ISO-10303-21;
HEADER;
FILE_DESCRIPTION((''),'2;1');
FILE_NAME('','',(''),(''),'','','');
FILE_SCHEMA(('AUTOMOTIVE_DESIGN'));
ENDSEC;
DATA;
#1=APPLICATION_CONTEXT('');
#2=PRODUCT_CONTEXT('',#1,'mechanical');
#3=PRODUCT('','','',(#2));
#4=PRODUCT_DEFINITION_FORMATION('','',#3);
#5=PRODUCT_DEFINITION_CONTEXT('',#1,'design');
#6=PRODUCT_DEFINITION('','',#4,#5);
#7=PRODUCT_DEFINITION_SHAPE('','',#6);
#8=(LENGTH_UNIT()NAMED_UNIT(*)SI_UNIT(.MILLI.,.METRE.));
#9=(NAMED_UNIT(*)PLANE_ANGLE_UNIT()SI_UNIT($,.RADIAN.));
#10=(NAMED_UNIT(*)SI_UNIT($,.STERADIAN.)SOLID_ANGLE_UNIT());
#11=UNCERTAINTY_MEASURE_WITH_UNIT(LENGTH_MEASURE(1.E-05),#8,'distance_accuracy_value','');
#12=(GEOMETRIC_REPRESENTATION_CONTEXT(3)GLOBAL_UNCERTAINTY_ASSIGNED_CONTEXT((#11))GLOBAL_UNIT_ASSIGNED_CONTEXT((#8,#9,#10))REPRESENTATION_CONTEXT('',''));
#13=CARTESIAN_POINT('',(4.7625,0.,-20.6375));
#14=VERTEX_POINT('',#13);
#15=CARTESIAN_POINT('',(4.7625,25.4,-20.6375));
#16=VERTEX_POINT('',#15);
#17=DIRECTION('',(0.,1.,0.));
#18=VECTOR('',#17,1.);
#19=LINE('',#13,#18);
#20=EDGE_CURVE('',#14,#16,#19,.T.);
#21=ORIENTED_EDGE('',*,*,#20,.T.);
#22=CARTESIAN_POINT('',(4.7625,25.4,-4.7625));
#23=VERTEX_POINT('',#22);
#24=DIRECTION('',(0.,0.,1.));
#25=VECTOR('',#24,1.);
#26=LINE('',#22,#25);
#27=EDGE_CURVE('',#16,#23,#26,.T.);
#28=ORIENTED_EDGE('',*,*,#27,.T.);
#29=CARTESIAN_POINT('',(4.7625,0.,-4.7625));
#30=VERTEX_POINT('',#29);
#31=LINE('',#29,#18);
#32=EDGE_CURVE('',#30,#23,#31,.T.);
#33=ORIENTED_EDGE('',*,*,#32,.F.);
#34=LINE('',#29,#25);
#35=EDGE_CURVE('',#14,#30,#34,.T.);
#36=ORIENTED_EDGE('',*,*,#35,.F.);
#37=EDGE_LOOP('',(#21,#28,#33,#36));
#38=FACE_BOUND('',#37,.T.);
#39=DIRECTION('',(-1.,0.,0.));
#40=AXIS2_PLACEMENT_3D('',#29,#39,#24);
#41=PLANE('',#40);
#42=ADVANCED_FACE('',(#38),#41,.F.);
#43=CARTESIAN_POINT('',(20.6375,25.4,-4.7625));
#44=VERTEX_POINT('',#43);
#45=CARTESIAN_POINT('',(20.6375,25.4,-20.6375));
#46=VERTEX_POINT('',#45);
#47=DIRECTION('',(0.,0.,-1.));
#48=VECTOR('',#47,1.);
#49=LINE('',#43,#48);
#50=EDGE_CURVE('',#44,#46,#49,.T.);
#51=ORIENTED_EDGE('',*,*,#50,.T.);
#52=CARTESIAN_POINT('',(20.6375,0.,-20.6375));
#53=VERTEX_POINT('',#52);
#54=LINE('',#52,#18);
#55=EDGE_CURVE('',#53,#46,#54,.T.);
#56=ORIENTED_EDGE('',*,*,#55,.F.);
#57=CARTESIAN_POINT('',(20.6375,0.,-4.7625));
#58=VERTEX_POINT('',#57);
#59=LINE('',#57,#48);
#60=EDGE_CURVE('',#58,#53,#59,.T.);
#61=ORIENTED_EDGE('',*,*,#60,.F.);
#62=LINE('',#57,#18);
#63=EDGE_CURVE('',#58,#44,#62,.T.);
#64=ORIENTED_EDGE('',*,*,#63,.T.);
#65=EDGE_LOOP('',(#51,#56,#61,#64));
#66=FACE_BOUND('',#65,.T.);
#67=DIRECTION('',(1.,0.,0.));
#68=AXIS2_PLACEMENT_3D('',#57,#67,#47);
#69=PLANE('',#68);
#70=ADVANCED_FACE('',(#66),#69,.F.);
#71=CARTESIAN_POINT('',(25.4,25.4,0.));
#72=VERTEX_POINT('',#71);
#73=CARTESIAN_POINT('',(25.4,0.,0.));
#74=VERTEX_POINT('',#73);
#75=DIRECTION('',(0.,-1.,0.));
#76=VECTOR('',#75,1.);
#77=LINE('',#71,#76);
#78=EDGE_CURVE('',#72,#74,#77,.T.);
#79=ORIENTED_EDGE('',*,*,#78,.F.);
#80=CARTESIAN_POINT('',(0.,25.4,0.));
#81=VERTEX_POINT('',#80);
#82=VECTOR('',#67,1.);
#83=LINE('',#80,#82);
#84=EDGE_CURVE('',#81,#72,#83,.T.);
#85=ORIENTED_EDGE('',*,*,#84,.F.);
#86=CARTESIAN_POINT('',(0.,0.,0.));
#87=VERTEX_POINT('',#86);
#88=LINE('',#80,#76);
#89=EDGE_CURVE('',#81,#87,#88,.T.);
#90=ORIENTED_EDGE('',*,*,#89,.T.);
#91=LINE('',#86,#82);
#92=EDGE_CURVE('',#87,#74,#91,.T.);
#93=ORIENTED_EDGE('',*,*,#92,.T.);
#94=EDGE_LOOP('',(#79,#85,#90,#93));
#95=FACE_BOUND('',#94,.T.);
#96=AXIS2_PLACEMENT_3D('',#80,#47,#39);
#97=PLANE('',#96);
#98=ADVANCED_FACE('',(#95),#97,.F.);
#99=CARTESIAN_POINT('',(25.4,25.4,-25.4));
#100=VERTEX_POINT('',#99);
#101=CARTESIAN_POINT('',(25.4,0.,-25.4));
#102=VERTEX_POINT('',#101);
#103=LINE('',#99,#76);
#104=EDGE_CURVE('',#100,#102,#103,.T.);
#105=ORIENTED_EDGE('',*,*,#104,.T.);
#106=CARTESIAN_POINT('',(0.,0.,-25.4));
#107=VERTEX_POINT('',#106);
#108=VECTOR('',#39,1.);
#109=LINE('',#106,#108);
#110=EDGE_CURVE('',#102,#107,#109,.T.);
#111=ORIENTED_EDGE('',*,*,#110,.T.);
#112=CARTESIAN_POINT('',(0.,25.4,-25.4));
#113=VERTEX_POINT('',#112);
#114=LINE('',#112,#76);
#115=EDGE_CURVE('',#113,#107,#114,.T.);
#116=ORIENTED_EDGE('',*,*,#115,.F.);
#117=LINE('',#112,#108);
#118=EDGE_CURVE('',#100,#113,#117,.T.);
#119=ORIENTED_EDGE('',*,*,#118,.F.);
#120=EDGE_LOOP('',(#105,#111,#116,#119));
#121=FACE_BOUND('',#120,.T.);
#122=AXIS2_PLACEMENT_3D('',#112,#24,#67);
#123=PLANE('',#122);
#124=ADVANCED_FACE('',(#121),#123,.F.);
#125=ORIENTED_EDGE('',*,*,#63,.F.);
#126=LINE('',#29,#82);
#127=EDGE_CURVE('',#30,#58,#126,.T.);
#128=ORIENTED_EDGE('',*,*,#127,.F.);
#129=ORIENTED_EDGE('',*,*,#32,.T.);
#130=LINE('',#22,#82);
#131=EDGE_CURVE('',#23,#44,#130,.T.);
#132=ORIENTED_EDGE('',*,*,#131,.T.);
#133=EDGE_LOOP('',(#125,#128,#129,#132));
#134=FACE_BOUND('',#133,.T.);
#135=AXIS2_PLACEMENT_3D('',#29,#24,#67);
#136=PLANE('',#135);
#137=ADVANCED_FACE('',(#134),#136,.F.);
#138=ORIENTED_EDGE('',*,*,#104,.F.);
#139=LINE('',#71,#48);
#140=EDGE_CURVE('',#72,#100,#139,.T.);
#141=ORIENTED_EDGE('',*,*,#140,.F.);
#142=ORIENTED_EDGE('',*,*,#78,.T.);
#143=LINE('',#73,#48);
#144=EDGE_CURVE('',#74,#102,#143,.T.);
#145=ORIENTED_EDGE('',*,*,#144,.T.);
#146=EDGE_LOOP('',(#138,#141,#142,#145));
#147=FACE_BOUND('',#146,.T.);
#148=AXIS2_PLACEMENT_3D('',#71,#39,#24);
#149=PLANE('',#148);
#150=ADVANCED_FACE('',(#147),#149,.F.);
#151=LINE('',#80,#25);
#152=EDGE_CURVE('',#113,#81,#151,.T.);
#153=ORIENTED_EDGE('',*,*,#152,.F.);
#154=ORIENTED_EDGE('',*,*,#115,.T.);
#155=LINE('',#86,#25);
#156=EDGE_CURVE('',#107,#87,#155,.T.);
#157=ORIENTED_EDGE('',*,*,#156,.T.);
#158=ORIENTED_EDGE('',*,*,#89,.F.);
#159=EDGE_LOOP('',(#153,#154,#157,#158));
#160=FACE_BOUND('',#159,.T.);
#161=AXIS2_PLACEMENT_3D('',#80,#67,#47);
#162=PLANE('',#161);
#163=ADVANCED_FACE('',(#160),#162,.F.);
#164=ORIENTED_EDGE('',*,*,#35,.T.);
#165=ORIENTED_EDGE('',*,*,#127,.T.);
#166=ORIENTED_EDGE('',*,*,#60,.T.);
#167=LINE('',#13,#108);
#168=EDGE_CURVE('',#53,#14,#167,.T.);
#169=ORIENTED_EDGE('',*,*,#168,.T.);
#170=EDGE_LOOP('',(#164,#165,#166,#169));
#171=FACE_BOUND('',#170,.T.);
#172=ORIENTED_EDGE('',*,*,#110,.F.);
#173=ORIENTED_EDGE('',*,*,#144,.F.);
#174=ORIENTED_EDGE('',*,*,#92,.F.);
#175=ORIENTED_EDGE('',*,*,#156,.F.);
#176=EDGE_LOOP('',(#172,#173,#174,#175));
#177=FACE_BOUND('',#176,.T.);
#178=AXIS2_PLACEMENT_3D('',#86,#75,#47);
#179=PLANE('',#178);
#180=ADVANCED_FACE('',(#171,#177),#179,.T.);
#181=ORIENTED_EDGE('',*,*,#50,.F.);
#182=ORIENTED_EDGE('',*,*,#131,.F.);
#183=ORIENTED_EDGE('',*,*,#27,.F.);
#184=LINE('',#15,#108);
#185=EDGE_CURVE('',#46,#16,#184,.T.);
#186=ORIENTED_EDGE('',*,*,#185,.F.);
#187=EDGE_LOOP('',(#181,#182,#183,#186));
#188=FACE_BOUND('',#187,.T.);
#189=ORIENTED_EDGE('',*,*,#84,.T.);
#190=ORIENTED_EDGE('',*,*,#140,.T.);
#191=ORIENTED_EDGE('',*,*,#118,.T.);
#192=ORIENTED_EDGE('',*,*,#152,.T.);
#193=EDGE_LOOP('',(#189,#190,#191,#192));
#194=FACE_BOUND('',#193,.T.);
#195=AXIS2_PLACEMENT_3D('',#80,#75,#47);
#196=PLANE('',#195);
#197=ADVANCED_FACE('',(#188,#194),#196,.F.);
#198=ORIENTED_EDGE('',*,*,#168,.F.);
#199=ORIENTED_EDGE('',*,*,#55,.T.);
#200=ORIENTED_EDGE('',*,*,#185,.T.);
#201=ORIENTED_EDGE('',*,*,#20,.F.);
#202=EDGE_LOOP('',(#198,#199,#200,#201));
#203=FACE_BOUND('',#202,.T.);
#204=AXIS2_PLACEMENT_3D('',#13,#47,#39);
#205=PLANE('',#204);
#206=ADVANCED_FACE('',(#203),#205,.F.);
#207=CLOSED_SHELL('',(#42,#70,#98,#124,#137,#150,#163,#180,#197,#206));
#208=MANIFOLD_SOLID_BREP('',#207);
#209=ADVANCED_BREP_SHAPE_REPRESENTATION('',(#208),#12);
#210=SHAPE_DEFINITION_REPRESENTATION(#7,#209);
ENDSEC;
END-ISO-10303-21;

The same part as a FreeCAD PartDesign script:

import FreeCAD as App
import Part
import Sketcher
Q = App.Units.Quantity

doc = App.newDocument("Part")
body = doc.addObject("PartDesign::Body", "Body")

sketch1 = doc.addObject("Sketcher::SketchObject", "Sketch")
body.addObject(sketch1)
sketch1.AttachmentSupport = (doc.XZ_Plane, [""])
sketch1.MapMode = "FlatFace"
sketch1.addGeometry(Part.LineSegment(App.Vector(0, -25, 0), App.Vector(0, 0, 0)), False)
sketch1.addGeometry(Part.LineSegment(App.Vector(0, 0, 0), App.Vector(25, 0, 0)), False)
sketch1.addGeometry(Part.LineSegment(App.Vector(25, 0, 0), App.Vector(25, -25, 0)), False)
sketch1.addGeometry(Part.LineSegment(App.Vector(25, -25, 0), App.Vector(0, -25, 0)), False)
sketch1.addConstraint(Sketcher.Constraint("Coincident", 0, 2, 1, 1))
sketch1.addConstraint(Sketcher.Constraint("Coincident", 1, 2, 2, 1))
sketch1.addConstraint(Sketcher.Constraint("Coincident", 2, 2, 3, 1))
sketch1.addConstraint(Sketcher.Constraint("Coincident", 3, 2, 0, 1))
sketch1.addConstraint(Sketcher.Constraint("Vertical", 0))
sketch1.addConstraint(Sketcher.Constraint("Horizontal", 1))
sketch1.addConstraint(Sketcher.Constraint("Vertical", 2))
sketch1.addConstraint(Sketcher.Constraint("Horizontal", 3))
sketch1.addConstraint(Sketcher.Constraint("Coincident", 0, 2, -1, 1))
sketch1.addConstraint(Sketcher.Constraint("Equal", 3, 0))
sketch1.addConstraint(Sketcher.Constraint("DistanceX", 1, 1, 1, 2, Q("1 in")))
pad1 = doc.addObject("PartDesign::Pad", "Pad")
body.addObject(pad1)
pad1.Profile = sketch1
pad1.Length = Q("1 in")
pad1.Reversed = True

sketch2 = doc.addObject("Sketcher::SketchObject", "Sketch001")
body.addObject(sketch2)
sketch2.AttachmentSupport = (doc.XZ_Plane, [""])
sketch2.MapMode = "FlatFace"
sketch2.AttachmentOffset = App.Placement(App.Vector(0, 0, -1 * 25.4), App.Rotation())
sketch2.addGeometry(Part.LineSegment(App.Vector(5, -21, 0), App.Vector(5, -5, 0)), False)
sketch2.addGeometry(Part.LineSegment(App.Vector(5, -5, 0), App.Vector(21, -5, 0)), False)
sketch2.addGeometry(Part.LineSegment(App.Vector(21, -5, 0), App.Vector(21, -21, 0)), False)
sketch2.addGeometry(Part.LineSegment(App.Vector(21, -21, 0), App.Vector(5, -21, 0)), False)
sketch2.addConstraint(Sketcher.Constraint("Coincident", 0, 2, 1, 1))
sketch2.addConstraint(Sketcher.Constraint("Coincident", 1, 2, 2, 1))
sketch2.addConstraint(Sketcher.Constraint("Coincident", 2, 2, 3, 1))
sketch2.addConstraint(Sketcher.Constraint("Coincident", 3, 2, 0, 1))
sketch2.addConstraint(Sketcher.Constraint("Vertical", 0))
sketch2.addConstraint(Sketcher.Constraint("Horizontal", 1))
sketch2.addConstraint(Sketcher.Constraint("Vertical", 2))
sketch2.addConstraint(Sketcher.Constraint("Horizontal", 3))
sketch2.addConstraint(Sketcher.Constraint("Equal", 3, 0))
sketch2.addConstraint(Sketcher.Constraint("DistanceX", 1, 1, 1, 2, Q("0.625 in")))
sketch2.addConstraint(Sketcher.Constraint("DistanceX", -1, 1, 0, 2, Q("0.1875 in")))
sketch2.addConstraint(Sketcher.Constraint("DistanceY", 0, 2, -1, 1, Q("0.1875 in")))
pocket1 = doc.addObject("PartDesign::Pocket", "Pocket")
body.addObject(pocket1)
pocket1.Profile = sketch2
pocket1.Type = "ThroughAll"
pocket1.Reversed = True

doc.recompute()
